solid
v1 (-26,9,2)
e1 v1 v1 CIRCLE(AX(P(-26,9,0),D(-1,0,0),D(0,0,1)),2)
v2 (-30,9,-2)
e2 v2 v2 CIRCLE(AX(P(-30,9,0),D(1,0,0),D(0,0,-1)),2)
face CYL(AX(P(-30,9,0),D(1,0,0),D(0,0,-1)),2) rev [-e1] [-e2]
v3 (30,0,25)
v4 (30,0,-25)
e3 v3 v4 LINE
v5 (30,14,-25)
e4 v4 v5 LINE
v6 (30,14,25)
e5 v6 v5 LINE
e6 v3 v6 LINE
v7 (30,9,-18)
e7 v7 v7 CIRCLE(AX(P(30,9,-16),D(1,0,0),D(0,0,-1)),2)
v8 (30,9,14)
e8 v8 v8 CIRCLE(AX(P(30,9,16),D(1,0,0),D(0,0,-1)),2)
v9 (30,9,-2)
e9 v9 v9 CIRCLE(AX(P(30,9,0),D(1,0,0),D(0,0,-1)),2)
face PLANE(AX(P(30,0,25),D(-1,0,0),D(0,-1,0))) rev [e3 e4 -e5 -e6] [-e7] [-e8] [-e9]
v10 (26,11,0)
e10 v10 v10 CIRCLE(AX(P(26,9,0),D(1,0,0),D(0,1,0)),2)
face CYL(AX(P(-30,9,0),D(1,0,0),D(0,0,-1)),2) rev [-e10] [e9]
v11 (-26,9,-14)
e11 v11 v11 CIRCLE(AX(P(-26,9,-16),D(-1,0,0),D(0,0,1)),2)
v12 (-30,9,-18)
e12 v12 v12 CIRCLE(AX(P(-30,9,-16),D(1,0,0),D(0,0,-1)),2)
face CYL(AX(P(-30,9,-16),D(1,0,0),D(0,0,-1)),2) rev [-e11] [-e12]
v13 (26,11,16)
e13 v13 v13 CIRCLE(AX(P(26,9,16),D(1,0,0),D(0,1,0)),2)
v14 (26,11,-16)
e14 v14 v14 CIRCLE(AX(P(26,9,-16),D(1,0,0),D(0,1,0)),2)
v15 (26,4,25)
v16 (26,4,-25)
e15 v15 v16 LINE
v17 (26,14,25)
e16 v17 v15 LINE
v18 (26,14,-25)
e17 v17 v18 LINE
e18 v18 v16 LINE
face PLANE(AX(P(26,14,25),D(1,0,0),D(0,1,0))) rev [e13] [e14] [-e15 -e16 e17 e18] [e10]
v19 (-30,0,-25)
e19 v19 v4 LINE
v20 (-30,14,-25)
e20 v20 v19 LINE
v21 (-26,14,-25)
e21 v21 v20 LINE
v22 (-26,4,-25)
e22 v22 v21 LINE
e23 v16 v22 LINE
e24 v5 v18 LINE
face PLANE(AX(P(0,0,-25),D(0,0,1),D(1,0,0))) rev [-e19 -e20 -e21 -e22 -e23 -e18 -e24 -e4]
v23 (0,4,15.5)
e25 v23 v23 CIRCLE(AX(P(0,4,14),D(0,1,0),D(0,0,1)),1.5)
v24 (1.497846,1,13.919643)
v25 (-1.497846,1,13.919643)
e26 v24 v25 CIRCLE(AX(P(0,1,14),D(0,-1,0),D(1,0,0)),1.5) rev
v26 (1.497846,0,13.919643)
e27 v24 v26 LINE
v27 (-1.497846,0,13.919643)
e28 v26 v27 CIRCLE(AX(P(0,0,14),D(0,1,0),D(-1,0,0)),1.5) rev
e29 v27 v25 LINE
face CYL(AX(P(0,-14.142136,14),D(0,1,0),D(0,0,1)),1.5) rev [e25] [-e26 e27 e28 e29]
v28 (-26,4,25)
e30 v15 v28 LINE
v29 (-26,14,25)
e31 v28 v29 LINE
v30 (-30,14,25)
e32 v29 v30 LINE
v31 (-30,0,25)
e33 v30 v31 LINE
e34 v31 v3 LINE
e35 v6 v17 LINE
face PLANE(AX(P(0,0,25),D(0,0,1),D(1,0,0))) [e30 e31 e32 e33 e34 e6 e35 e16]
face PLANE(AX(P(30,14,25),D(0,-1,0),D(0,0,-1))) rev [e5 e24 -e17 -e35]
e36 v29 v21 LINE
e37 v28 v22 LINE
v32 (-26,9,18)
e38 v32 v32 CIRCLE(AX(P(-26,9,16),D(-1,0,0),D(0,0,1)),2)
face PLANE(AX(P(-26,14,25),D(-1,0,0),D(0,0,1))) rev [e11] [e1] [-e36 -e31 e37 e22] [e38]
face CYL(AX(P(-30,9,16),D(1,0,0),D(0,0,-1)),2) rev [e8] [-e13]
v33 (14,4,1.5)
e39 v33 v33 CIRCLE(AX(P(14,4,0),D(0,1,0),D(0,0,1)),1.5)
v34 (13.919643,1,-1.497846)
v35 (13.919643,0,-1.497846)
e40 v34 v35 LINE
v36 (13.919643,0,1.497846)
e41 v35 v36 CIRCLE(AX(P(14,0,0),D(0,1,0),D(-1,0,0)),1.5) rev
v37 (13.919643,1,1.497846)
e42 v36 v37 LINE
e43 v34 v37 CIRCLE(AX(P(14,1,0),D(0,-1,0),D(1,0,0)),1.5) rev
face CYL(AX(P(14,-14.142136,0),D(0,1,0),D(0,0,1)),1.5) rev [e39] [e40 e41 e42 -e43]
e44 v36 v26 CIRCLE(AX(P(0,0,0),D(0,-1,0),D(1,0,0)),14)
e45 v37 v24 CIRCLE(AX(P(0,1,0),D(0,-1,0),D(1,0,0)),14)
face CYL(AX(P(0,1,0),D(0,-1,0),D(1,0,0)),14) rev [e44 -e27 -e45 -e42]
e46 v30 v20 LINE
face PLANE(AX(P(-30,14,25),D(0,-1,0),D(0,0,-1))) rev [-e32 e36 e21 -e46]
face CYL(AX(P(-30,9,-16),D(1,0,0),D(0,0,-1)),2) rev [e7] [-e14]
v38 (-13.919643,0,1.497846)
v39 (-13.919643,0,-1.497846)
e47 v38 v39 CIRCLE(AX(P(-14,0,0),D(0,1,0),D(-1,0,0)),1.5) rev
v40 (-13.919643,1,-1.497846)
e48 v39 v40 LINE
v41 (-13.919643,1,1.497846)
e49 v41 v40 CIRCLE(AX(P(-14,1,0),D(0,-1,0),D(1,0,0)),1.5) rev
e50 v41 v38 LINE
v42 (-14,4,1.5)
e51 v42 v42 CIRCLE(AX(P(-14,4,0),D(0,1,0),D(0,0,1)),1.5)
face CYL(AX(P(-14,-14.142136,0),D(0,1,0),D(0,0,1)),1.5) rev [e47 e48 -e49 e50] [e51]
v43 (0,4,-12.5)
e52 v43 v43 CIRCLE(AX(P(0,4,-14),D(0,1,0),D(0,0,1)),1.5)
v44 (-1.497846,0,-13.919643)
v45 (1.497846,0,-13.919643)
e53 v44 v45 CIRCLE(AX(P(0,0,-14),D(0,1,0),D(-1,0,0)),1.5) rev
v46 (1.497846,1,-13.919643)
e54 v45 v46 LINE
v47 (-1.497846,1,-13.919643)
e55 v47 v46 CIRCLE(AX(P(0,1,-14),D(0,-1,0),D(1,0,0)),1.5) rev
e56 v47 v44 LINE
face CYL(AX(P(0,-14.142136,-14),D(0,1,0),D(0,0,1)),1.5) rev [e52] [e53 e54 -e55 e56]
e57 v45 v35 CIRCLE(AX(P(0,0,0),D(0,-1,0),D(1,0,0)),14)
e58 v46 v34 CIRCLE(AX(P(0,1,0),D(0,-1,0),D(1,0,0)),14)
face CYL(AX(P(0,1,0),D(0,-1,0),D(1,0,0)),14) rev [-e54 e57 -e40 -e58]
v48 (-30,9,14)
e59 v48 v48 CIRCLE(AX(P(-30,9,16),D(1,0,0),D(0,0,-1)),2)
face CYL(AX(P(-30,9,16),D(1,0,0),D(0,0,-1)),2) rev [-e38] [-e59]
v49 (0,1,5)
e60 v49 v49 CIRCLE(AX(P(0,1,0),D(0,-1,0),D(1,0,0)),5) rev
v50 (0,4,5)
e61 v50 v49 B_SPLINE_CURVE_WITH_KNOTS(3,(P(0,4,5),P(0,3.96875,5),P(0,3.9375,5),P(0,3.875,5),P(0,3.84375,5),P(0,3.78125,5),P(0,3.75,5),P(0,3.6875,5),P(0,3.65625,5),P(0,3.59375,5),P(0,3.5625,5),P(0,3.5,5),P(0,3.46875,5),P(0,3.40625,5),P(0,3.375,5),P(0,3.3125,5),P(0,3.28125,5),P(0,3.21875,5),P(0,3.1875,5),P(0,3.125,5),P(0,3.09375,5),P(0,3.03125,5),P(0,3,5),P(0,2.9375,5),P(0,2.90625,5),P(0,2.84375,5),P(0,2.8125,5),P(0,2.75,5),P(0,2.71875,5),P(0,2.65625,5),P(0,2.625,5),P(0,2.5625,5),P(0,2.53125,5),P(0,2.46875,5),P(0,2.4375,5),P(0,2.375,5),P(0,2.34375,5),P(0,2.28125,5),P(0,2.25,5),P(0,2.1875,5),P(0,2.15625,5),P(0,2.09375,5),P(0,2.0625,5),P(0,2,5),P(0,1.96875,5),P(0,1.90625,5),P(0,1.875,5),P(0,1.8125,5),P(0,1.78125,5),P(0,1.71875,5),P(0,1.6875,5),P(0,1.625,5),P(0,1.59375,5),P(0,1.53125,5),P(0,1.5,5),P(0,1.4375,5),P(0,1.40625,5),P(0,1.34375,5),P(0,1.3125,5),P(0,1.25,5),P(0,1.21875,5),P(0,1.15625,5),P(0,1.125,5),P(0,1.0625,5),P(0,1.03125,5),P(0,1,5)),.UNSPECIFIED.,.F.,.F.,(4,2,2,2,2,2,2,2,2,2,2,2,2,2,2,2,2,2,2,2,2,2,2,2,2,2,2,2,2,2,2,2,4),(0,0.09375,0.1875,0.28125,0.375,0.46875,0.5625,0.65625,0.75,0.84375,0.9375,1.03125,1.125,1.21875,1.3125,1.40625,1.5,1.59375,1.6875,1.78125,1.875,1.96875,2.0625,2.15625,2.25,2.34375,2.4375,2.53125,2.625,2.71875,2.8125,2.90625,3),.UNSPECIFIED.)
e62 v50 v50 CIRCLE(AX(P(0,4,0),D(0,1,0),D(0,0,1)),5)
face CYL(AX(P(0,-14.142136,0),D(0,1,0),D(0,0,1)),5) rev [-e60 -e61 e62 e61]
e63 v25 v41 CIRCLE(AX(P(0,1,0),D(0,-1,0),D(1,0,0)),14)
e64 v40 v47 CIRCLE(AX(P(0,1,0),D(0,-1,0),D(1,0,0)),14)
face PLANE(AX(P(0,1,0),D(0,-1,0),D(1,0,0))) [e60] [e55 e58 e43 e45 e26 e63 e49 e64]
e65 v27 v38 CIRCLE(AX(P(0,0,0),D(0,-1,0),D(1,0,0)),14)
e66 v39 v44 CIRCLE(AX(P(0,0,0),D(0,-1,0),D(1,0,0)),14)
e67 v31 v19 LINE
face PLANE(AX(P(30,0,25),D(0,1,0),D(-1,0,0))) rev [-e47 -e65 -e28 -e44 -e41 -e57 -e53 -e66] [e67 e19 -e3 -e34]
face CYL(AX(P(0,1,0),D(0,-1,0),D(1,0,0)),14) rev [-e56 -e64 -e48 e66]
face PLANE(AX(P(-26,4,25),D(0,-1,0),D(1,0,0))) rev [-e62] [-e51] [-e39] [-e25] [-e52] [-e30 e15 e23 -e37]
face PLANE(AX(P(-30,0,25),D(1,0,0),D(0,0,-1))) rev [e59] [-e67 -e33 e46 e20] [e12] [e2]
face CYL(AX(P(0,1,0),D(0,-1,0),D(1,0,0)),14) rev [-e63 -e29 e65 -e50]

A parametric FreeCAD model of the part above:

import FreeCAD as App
import Part
import Sketcher
from FreeCAD import Vector


def add_polygon(sketch, points):
    """Adds a closed chain of lines whose ends are joined by coincident constraints."""
    first, n = sketch.GeometryCount, len(points)
    for a, b in zip(points, points[1:] + points[:1]):
        sketch.addGeometry(Part.LineSegment(App.Vector(*a, 0), App.Vector(*b, 0)), False)
    for i in range(n):
        sketch.addConstraint(Sketcher.Constraint("Coincident", first + i, 2, first + (i + 1) % n, 1))

doc = App.newDocument("Part")
body = doc.addObject("PartDesign::Body", "Body")

# Sketch on XY plane
sketch1 = doc.addObject("Sketcher::SketchObject", "Sketch")
body.addObject(sketch1)
sketch1.AttachmentSupport = (doc.XY_Plane, [""])
sketch1.MapMode = "FlatFace"
add_polygon(sketch1, [(-30, 0), (30, 0), (30, 14), (26, 14), (26, 4), (-26, 4), (-26, 14), (-30, 14)])  # lines 0-7
sketch1.addConstraint([
    Sketcher.Constraint("Horizontal", 0),
    Sketcher.Constraint("Vertical", 1),
    Sketcher.Constraint("Horizontal", 2),
    Sketcher.Constraint("Vertical", 3),
    Sketcher.Constraint("Horizontal", 4),
    Sketcher.Constraint("Vertical", 5),
    Sketcher.Constraint("Horizontal", 6),
    Sketcher.Constraint("Vertical", 7),
    Sketcher.Constraint("Symmetric", 0, 2, 7, 2, -1, 1),
    Sketcher.Constraint("Symmetric", 2, 2, 5, 2, -2),
    Sketcher.Constraint("DistanceX", 0, 1, 0, 2, 60.0),
    Sketcher.Constraint("DistanceX", 2, 2, 2, 1, 4.0),
    Sketcher.Constraint("DistanceY", 1, 1, 1, 2, 14.0),
    Sketcher.Constraint("DistanceY", 3, 2, 3, 1, 10.0),
])
pad1 = doc.addObject("PartDesign::Pad", "Pad")
body.addObject(pad1)
pad1.Profile = sketch1
pad1.Length = 50
pad1.Midplane = True

# Sketch on XZ plane
sketch2 = doc.addObject("Sketcher::SketchObject", "Sketch001")
body.addObject(sketch2)
sketch2.AttachmentSupport = (doc.XZ_Plane, [""])
sketch2.MapMode = "FlatFace"
sketch2.AttachmentOffset = App.Placement(Vector(0, 0, -4), App.Rotation())
sketch2.addGeometry([
    Part.Circle(Vector(0, 0, 0), Vector(0, 0, 1), 5),  # 0
    Part.Circle(Vector(0, -14, 0), Vector(0, 0, 1), 1.5),  # 1
    Part.Circle(Vector(14, 0, 0), Vector(0, 0, 1), 1.5),  # 2
    Part.Circle(Vector(0, 14, 0), Vector(0, 0, 1), 1.5),  # 3
    Part.Circle(Vector(-14, 0, 0), Vector(0, 0, 1), 1.5),  # 4
], False)
sketch2.addConstraint([
    Sketcher.Constraint("Coincident", 0, 3, -1, 1),
    Sketcher.Constraint("Equal", 1, 2),
    Sketcher.Constraint("Equal", 2, 3),
    Sketcher.Constraint("Equal", 3, 4),
    Sketcher.Constraint("Symmetric", 1, 3, 3, 3, -1, 1),
    Sketcher.Constraint("Symmetric", 2, 3, 4, 3, -1, 1),
    Sketcher.Constraint("PointOnObject", 1, 3, -2),
    Sketcher.Constraint("PointOnObject", 2, 3, -1),
    Sketcher.Constraint("Diameter", 0, 10.0),
    Sketcher.Constraint("Diameter", 1, 3.0),
    Sketcher.Constraint("DistanceY", 1, 3, -1, 1, 14.0),
    Sketcher.Constraint("DistanceX", -1, 1, 2, 3, 14.0),
])
pocket1 = doc.addObject("PartDesign::Pocket", "Pocket")
body.addObject(pocket1)
pocket1.Profile = sketch2
pocket1.Length = 4
pocket1.Reversed = True

# Sketch on XZ plane
sketch3 = doc.addObject("Sketcher::SketchObject", "Sketch002")
body.addObject(sketch3)
sketch3.AttachmentSupport = (doc.XZ_Plane, [""])
sketch3.MapMode = "FlatFace"
sketch3.addGeometry(Part.Circle(Vector(0, 0, 0), Vector(0, 0, 1), 14), False)
sketch3.addConstraint([
    Sketcher.Constraint("Coincident", 0, 3, -1, 1),
    Sketcher.Constraint("Diameter", 0, 28.0),
])
pocket2 = doc.addObject("PartDesign::Pocket", "Pocket001")
body.addObject(pocket2)
pocket2.Profile = sketch3
pocket2.Length = 1

# Sketch on YZ plane
sketch4 = doc.addObject("Sketcher::SketchObject", "Sketch003")
body.addObject(sketch4)
sketch4.AttachmentSupport = (doc.YZ_Plane, [""])
sketch4.MapMode = "FlatFace"
sketch4.AttachmentOffset = App.Placement(Vector(0, 0, 30), App.Rotation())
sketch4.addGeometry([
    Part.Circle(Vector(9, 16, 0), Vector(0, 0, 1), 2),
    Part.Circle(Vector(9, 0, 0), Vector(0, 0, 1), 2),
    Part.Circle(Vector(9, -16, 0), Vector(0, 0, 1), 2),
], False)
sketch4.addConstraint([
    Sketcher.Constraint("Equal", 0, 1),
    Sketcher.Constraint("Equal", 1, 2),
    Sketcher.Constraint("Symmetric", 0, 3, 2, 3, -1),
    Sketcher.Constraint("PointOnObject", 1, 3, -1),
    Sketcher.Constraint("Vertical", 0, 3, 1, 3),
    Sketcher.Constraint("Diameter", 0, 4.0),
    Sketcher.Constraint("DistanceX", -1, 1, 0, 3, 9.0),
    Sketcher.Constraint("DistanceY", -1, 1, 0, 3, 16.0),
])
pocket3 = doc.addObject("PartDesign::Pocket", "Pocket002")
body.addObject(pocket3)
pocket3.Profile = sketch4
pocket3.Type = "ThroughAll"

doc.recompute()
